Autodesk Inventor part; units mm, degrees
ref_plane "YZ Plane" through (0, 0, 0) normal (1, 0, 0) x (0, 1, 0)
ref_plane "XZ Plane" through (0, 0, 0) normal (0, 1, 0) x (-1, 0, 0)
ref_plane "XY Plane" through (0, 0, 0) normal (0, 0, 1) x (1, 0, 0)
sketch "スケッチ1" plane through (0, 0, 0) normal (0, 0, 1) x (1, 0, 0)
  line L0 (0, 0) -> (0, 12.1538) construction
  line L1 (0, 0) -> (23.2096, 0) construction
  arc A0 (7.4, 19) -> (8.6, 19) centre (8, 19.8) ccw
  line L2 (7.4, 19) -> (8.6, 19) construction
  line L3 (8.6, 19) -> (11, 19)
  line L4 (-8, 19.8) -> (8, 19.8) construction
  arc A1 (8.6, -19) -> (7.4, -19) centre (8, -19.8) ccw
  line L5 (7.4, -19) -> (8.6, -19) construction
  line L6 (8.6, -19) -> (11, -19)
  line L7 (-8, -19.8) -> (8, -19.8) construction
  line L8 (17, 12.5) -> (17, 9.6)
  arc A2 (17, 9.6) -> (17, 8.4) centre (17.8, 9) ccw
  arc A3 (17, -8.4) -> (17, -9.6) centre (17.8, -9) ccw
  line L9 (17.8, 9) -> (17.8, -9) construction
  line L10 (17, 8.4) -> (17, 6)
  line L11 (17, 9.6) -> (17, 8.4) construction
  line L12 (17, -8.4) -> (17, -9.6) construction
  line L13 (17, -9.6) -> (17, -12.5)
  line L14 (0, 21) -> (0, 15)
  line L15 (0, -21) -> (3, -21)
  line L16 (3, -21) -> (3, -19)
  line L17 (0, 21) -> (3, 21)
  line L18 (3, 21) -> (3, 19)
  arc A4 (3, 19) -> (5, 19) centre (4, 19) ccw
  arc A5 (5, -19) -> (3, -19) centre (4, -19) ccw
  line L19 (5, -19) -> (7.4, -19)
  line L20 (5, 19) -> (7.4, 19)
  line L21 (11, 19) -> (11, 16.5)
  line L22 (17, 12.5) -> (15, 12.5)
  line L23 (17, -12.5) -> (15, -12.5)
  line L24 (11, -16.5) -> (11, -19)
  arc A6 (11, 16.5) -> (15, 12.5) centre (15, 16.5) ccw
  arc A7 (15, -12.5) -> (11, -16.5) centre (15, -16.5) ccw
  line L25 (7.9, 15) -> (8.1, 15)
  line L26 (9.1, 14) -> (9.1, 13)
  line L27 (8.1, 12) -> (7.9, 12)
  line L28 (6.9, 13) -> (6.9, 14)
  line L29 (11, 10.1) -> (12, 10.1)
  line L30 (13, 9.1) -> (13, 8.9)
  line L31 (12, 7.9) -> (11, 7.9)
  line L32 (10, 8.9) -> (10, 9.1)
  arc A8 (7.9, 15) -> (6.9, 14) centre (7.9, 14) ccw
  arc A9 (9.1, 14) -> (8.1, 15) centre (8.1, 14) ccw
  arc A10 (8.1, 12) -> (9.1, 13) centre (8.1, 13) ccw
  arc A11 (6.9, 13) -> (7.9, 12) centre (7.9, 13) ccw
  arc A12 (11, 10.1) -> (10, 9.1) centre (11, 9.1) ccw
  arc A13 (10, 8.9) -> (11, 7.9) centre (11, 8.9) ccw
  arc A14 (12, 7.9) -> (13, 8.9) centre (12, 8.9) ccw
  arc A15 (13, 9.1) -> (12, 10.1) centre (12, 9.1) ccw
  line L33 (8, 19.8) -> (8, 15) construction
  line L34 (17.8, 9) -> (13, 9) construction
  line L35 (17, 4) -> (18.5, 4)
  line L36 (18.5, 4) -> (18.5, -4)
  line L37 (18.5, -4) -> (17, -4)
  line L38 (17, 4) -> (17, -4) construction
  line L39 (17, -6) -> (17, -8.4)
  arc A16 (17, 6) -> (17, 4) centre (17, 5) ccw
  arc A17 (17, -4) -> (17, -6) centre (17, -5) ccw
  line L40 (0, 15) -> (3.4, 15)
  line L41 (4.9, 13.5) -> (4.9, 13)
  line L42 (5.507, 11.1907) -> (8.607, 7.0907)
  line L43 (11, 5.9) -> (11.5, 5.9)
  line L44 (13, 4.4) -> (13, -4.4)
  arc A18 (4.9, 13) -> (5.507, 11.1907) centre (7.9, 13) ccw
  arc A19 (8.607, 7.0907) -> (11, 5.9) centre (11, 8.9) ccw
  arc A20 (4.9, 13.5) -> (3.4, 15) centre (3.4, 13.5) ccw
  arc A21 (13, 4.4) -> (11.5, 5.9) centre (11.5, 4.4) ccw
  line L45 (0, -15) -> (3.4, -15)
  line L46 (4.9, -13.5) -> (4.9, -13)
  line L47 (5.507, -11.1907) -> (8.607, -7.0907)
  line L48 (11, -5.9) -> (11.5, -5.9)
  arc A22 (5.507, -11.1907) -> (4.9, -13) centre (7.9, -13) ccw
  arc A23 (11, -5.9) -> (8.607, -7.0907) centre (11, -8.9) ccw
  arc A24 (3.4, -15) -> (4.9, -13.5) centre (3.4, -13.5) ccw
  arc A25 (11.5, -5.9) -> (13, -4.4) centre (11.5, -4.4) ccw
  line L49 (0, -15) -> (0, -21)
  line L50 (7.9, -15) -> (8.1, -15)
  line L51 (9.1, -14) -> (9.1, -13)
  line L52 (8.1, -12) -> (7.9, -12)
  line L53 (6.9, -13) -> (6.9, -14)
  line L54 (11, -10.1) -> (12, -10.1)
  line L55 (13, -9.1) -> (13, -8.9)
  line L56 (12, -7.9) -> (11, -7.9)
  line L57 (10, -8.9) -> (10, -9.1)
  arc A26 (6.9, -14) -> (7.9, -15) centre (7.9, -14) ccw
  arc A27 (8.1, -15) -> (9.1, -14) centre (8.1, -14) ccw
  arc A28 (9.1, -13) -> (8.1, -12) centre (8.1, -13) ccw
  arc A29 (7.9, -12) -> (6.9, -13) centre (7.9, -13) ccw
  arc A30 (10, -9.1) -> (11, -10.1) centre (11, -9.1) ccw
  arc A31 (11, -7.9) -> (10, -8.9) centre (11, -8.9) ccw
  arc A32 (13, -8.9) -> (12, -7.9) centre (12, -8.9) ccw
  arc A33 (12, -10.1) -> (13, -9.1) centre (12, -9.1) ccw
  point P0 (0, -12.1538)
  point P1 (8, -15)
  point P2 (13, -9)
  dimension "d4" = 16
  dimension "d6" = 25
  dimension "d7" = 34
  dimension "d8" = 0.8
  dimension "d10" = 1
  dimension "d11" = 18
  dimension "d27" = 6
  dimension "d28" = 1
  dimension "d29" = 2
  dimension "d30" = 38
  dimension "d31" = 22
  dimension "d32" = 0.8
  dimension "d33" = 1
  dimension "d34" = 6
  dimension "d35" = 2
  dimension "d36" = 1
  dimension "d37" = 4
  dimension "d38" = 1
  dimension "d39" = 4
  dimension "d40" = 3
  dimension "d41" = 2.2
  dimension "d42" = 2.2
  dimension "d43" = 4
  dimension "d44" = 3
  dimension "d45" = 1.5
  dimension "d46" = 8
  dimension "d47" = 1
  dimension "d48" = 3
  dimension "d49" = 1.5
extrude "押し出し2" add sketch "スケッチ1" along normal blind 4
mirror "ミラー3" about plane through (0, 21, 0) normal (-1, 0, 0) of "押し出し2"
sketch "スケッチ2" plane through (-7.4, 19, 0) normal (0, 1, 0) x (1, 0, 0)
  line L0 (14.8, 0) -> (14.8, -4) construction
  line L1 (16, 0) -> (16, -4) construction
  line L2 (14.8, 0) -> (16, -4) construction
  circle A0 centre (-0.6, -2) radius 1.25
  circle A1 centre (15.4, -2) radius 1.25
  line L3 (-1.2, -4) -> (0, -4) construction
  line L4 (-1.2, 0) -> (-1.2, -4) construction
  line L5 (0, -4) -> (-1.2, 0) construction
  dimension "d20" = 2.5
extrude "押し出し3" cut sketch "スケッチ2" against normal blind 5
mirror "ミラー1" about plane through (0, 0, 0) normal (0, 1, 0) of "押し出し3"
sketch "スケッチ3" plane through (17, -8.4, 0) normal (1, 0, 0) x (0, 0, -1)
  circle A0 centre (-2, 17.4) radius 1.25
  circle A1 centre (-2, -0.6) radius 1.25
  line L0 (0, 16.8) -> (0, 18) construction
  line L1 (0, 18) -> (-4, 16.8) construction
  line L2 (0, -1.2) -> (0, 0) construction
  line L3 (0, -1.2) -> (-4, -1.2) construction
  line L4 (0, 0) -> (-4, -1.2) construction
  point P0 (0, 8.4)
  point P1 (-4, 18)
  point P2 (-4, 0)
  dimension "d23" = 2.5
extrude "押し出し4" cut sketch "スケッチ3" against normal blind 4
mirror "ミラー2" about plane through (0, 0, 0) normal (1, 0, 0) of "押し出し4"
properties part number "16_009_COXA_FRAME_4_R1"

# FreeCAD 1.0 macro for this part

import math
import FreeCAD as App
import Part
import Sketcher

V = App.Vector
Q = App.Units.Quantity

doc = App.newDocument("Part")
body = doc.addObject("PartDesign::Body", "Body")

sketch1 = doc.addObject("Sketcher::SketchObject", "Sketch")
body.addObject(sketch1)
sketch1.AttachmentSupport = (doc.XY_Plane, [""])
sketch1.MapMode = "FlatFace"
sketch1.addGeometry([
    Part.ArcOfCircle(Part.Circle(V(8, 19.8, 0), V(0, 0, 1), 1), math.radians(-127), math.radians(-53)),
    Part.LineSegment(V(7.4, 19, 0), V(5, 19, 0)),
    Part.ArcOfCircle(Part.Circle(V(4, 19, 0), V(0, 0, 1), 1), math.radians(180), math.radians(360)),
    Part.LineSegment(V(3, 19, 0), V(3, 21, 0)),
    Part.LineSegment(V(3, 21, 0), V(0, 21, 0)),
    Part.LineSegment(V(0, 21, 0), V(0, 15, 0)),
    Part.LineSegment(V(0, 15, 0), V(3.4, 15, 0)),
    Part.ArcOfCircle(Part.Circle(V(3.4, 13.5, 0), V(0, 0, 1), 1.5), math.radians(0), math.radians(90)),
    Part.LineSegment(V(4.9, 13.5, 0), V(4.9, 13, 0)),
    Part.ArcOfCircle(Part.Circle(V(7.9, 13, 0), V(0, 0, 1), 3), math.radians(180), math.radians(217)),
    Part.LineSegment(V(5.51, 11.19, 0), V(8.61, 7.09, 0)),
    Part.ArcOfCircle(Part.Circle(V(11, 8.9, 0), V(0, 0, 1), 3), math.radians(-143), math.radians(-90)),
    Part.LineSegment(V(11, 5.9, 0), V(11.5, 5.9, 0)),
    Part.ArcOfCircle(Part.Circle(V(11.5, 4.4, 0), V(0, 0, 1), 1.5), math.radians(0), math.radians(90)),
    Part.LineSegment(V(13, 4.4, 0), V(13, -4.4, 0)),
    Part.ArcOfCircle(Part.Circle(V(11.5, -4.4, 0), V(0, 0, 1), 1.5), math.radians(-90), math.radians(0)),
    Part.LineSegment(V(11.5, -5.9, 0), V(11, -5.9, 0)),
    Part.ArcOfCircle(Part.Circle(V(11, -8.9, 0), V(0, 0, 1), 3), math.radians(90), math.radians(143)),
    Part.LineSegment(V(8.61, -7.09, 0), V(5.51, -11.19, 0)),
    Part.ArcOfCircle(Part.Circle(V(7.9, -13, 0), V(0, 0, 1), 3), math.radians(143), math.radians(180)),
    Part.LineSegment(V(4.9, -13, 0), V(4.9, -13.5, 0)),
    Part.ArcOfCircle(Part.Circle(V(3.4, -13.5, 0), V(0, 0, 1), 1.5), math.radians(-90), math.radians(0)),
    Part.LineSegment(V(3.4, -15, 0), V(0, -15, 0)),
    Part.LineSegment(V(0, -15, 0), V(0, -21, 0)),
    Part.LineSegment(V(0, -21, 0), V(3, -21, 0)),
    Part.LineSegment(V(3, -21, 0), V(3, -19, 0)),
    Part.ArcOfCircle(Part.Circle(V(4, -19, 0), V(0, 0, 1), 1), math.radians(0), math.radians(180)),
    Part.LineSegment(V(5, -19, 0), V(7.4, -19, 0)),
    Part.ArcOfCircle(Part.Circle(V(8, -19.8, 0), V(0, 0, 1), 1), math.radians(53), math.radians(127)),
    Part.LineSegment(V(8.6, -19, 0), V(11, -19, 0)),
    Part.LineSegment(V(11, -19, 0), V(11, -16.5, 0)),
    Part.ArcOfCircle(Part.Circle(V(15, -16.5, 0), V(0, 0, 1), 4), math.radians(90), math.radians(180)),
    Part.LineSegment(V(15, -12.5, 0), V(17, -12.5, 0)),
    Part.LineSegment(V(17, -12.5, 0), V(17, -9.6, 0)),
    Part.ArcOfCircle(Part.Circle(V(17.8, -9, 0), V(0, 0, 1), 1), math.radians(143), math.radians(217)),
    Part.LineSegment(V(17, -8.4, 0), V(17, -6, 0)),
    Part.ArcOfCircle(Part.Circle(V(17, -5, 0), V(0, 0, 1), 1), math.radians(90), math.radians(270)),
    Part.LineSegment(V(17, -4, 0), V(18.5, -4, 0)),
    Part.LineSegment(V(18.5, -4, 0), V(18.5, 4, 0)),
    Part.LineSegment(V(18.5, 4, 0), V(17, 4, 0)),
    Part.ArcOfCircle(Part.Circle(V(17, 5, 0), V(0, 0, 1), 1), math.radians(90), math.radians(270)),
    Part.LineSegment(V(17, 6, 0), V(17, 8.4, 0)),
    Part.ArcOfCircle(Part.Circle(V(17.8, 9, 0), V(0, 0, 1), 1), math.radians(143), math.radians(217)),
    Part.LineSegment(V(17, 9.6, 0), V(17, 12.5, 0)),
    Part.LineSegment(V(17, 12.5, 0), V(15, 12.5, 0)),
    Part.ArcOfCircle(Part.Circle(V(15, 16.5, 0), V(0, 0, 1), 4), math.radians(180), math.radians(270)),
    Part.LineSegment(V(11, 16.5, 0), V(11, 19, 0)),
    Part.LineSegment(V(11, 19, 0), V(8.6, 19, 0)),
    Part.LineSegment(V(8.1, -15, 0), V(7.9, -15, 0)),
    Part.ArcOfCircle(Part.Circle(V(7.9, -14, 0), V(0, 0, 1), 1), math.radians(180), math.radians(270)),
    Part.LineSegment(V(6.9, -14, 0), V(6.9, -13, 0)),
    Part.ArcOfCircle(Part.Circle(V(7.9, -13, 0), V(0, 0, 1), 1), math.radians(90), math.radians(180)),
    Part.LineSegment(V(7.9, -12, 0), V(8.1, -12, 0)),
    Part.ArcOfCircle(Part.Circle(V(8.1, -13, 0), V(0, 0, 1), 1), math.radians(0), math.radians(90)),
    Part.LineSegment(V(9.1, -13, 0), V(9.1, -14, 0)),
    Part.ArcOfCircle(Part.Circle(V(8.1, -14, 0), V(0, 0, 1), 1), math.radians(-90), math.radians(0)),
    Part.LineSegment(V(12, -10.1, 0), V(11, -10.1, 0)),
    Part.ArcOfCircle(Part.Circle(V(11, -9.1, 0), V(0, 0, 1), 1), math.radians(180), math.radians(270)),
    Part.LineSegment(V(10, -9.1, 0), V(10, -8.9, 0)),
    Part.ArcOfCircle(Part.Circle(V(11, -8.9, 0), V(0, 0, 1), 1), math.radians(90), math.radians(180)),
    Part.LineSegment(V(11, -7.9, 0), V(12, -7.9, 0)),
    Part.ArcOfCircle(Part.Circle(V(12, -8.9, 0), V(0, 0, 1), 1), math.radians(0), math.radians(90)),
    Part.LineSegment(V(13, -8.9, 0), V(13, -9.1, 0)),
    Part.ArcOfCircle(Part.Circle(V(12, -9.1, 0), V(0, 0, 1), 1), math.radians(-90), math.radians(0)),
    Part.ArcOfCircle(Part.Circle(V(7.9, 14, 0), V(0, 0, 1), 1), math.radians(90), math.radians(180)),
    Part.LineSegment(V(7.9, 15, 0), V(8.1, 15, 0)),
    Part.ArcOfCircle(Part.Circle(V(8.1, 14, 0), V(0, 0, 1), 1), math.radians(0), math.radians(90)),
    Part.LineSegment(V(9.1, 14, 0), V(9.1, 13, 0)),
    Part.ArcOfCircle(Part.Circle(V(8.1, 13, 0), V(0, 0, 1), 1), math.radians(-90), math.radians(0)),
    Part.LineSegment(V(8.1, 12, 0), V(7.9, 12, 0)),
    Part.ArcOfCircle(Part.Circle(V(7.9, 13, 0), V(0, 0, 1), 1), math.radians(180), math.radians(270)),
    Part.LineSegment(V(6.9, 13, 0), V(6.9, 14, 0)),
    Part.ArcOfCircle(Part.Circle(V(11, 9.1, 0), V(0, 0, 1), 1), math.radians(90), math.radians(180)),
    Part.LineSegment(V(11, 10.1, 0), V(12, 10.1, 0)),
    Part.ArcOfCircle(Part.Circle(V(12, 9.1, 0), V(0, 0, 1), 1), math.radians(0), math.radians(90)),
    Part.LineSegment(V(13, 9.1, 0), V(13, 8.9, 0)),
    Part.ArcOfCircle(Part.Circle(V(12, 8.9, 0), V(0, 0, 1), 1), math.radians(-90), math.radians(0)),
    Part.LineSegment(V(12, 7.9, 0), V(11, 7.9, 0)),
    Part.ArcOfCircle(Part.Circle(V(11, 8.9, 0), V(0, 0, 1), 1), math.radians(180), math.radians(270)),
    Part.LineSegment(V(10, 8.9, 0), V(10, 9.1, 0)),
], False)
sketch1.addConstraint([
    Sketcher.Constraint("Coincident", 0, 1, 1, 1),
    Sketcher.Constraint("Coincident", 1, 2, 2, 2),
    Sketcher.Constraint("Tangent", 2, 1, 3, 1),
    Sketcher.Constraint("Coincident", 3, 2, 4, 1),
    Sketcher.Constraint("Coincident", 4, 2, 5, 1),
    Sketcher.Constraint("Coincident", 5, 2, 6, 1),
    Sketcher.Constraint("Tangent", 6, 2, 7, 2),
    Sketcher.Constraint("Tangent", 7, 1, 8, 1),
    Sketcher.Constraint("Tangent", 8, 2, 9, 1),
    Sketcher.Constraint("Tangent", 9, 2, 10, 1),
    Sketcher.Constraint("Tangent", 10, 2, 11, 1),
    Sketcher.Constraint("Tangent", 11, 2, 12, 1),
    Sketcher.Constraint("Tangent", 12, 2, 13, 2),
    Sketcher.Constraint("Tangent", 13, 1, 14, 1),
    Sketcher.Constraint("Tangent", 14, 2, 15, 2),
    Sketcher.Constraint("Tangent", 15, 1, 16, 1),
    Sketcher.Constraint("Tangent", 16, 2, 17, 1),
    Sketcher.Constraint("Tangent", 17, 2, 18, 1),
    Sketcher.Constraint("Tangent", 18, 2, 19, 1),
    Sketcher.Constraint("Tangent", 19, 2, 20, 1),
    Sketcher.Constraint("Tangent", 20, 2, 21, 2),
    Sketcher.Constraint("Tangent", 21, 1, 22, 1),
    Sketcher.Constraint("Coincident", 22, 2, 23, 1),
    Sketcher.Constraint("Coincident", 23, 2, 24, 1),
    Sketcher.Constraint("Coincident", 24, 2, 25, 1),
    Sketcher.Constraint("Tangent", 25, 2, 26, 2),
    Sketcher.Constraint("Coincident", 26, 1, 27, 1),
    Sketcher.Constraint("Coincident", 27, 2, 28, 2),
    Sketcher.Constraint("Coincident", 28, 1, 29, 1),
    Sketcher.Constraint("Coincident", 29, 2, 30, 1),
    Sketcher.Constraint("Tangent", 30, 2, 31, 2),
    Sketcher.Constraint("Tangent", 31, 1, 32, 1),
    Sketcher.Constraint("Coincident", 32, 2, 33, 1),
    Sketcher.Constraint("Coincident", 33, 2, 34, 2),
    Sketcher.Constraint("Coincident", 34, 1, 35, 1),
    Sketcher.Constraint("Coincident", 35, 2, 36, 2),
    Sketcher.Constraint("Tangent", 36, 1, 37, 1),
    Sketcher.Constraint("Coincident", 37, 2, 38, 1),
    Sketcher.Constraint("Coincident", 38, 2, 39, 1),
    Sketcher.Constraint("Tangent", 39, 2, 40, 2),
    Sketcher.Constraint("Coincident", 40, 1, 41, 1),
    Sketcher.Constraint("Coincident", 41, 2, 42, 2),
    Sketcher.Constraint("Coincident", 42, 1, 43, 1),
    Sketcher.Constraint("Coincident", 43, 2, 44, 1),
    Sketcher.Constraint("Tangent", 44, 2, 45, 2),
    Sketcher.Constraint("Tangent", 45, 1, 46, 1),
    Sketcher.Constraint("Coincident", 46, 2, 47, 1),
    Sketcher.Constraint("Coincident", 47, 2, 0, 2),
    Sketcher.Constraint("Tangent", 48, 2, 49, 2),
    Sketcher.Constraint("Tangent", 49, 1, 50, 1),
    Sketcher.Constraint("Tangent", 50, 2, 51, 2),
    Sketcher.Constraint("Tangent", 51, 1, 52, 1),
    Sketcher.Constraint("Tangent", 52, 2, 53, 2),
    Sketcher.Constraint("Tangent", 53, 1, 54, 1),
    Sketcher.Constraint("Tangent", 54, 2, 55, 2),
    Sketcher.Constraint("Tangent", 55, 1, 48, 1),
    Sketcher.Constraint("Tangent", 56, 2, 57, 2),
    Sketcher.Constraint("Tangent", 57, 1, 58, 1),
    Sketcher.Constraint("Tangent", 58, 2, 59, 2),
    Sketcher.Constraint("Tangent", 59, 1, 60, 1),
    Sketcher.Constraint("Tangent", 60, 2, 61, 2),
    Sketcher.Constraint("Tangent", 61, 1, 62, 1),
    Sketcher.Constraint("Tangent", 62, 2, 63, 2),
    Sketcher.Constraint("Tangent", 63, 1, 56, 1),
    Sketcher.Constraint("Tangent", 64, 1, 65, 1),
    Sketcher.Constraint("Tangent", 65, 2, 66, 2),
    Sketcher.Constraint("Tangent", 66, 1, 67, 1),
    Sketcher.Constraint("Tangent", 67, 2, 68, 2),
    Sketcher.Constraint("Tangent", 68, 1, 69, 1),
    Sketcher.Constraint("Tangent", 69, 2, 70, 2),
    Sketcher.Constraint("Tangent", 70, 1, 71, 1),
    Sketcher.Constraint("Tangent", 71, 2, 64, 2),
    Sketcher.Constraint("Tangent", 72, 1, 73, 1),
    Sketcher.Constraint("Tangent", 73, 2, 74, 2),
    Sketcher.Constraint("Tangent", 74, 1, 75, 1),
    Sketcher.Constraint("Tangent", 75, 2, 76, 2),
    Sketcher.Constraint("Tangent", 76, 1, 77, 1),
    Sketcher.Constraint("Tangent", 77, 2, 78, 2),
    Sketcher.Constraint("Tangent", 78, 1, 79, 1),
    Sketcher.Constraint("Tangent", 79, 2, 72, 2),
    Sketcher.Constraint("Horizontal", 1),
    Sketcher.Constraint("Vertical", 3),
    Sketcher.Constraint("Horizontal", 4),
    Sketcher.Constraint("Vertical", 5),
    Sketcher.Constraint("Horizontal", 6),
    Sketcher.Constraint("Vertical", 8),
    Sketcher.Constraint("Horizontal", 12),
    Sketcher.Constraint("Vertical", 14),
    Sketcher.Constraint("Horizontal", 16),
    Sketcher.Constraint("Vertical", 20),
    Sketcher.Constraint("Horizontal", 22),
    Sketcher.Constraint("Vertical", 23),
    Sketcher.Constraint("Horizontal", 24),
    Sketcher.Constraint("Vertical", 25),
    Sketcher.Constraint("Horizontal", 27),
    Sketcher.Constraint("Horizontal", 29),
    Sketcher.Constraint("Vertical", 30),
    Sketcher.Constraint("Horizontal", 32),
    Sketcher.Constraint("Vertical", 33),
    Sketcher.Constraint("Vertical", 35),
    Sketcher.Constraint("Horizontal", 37),
    Sketcher.Constraint("Vertical", 38),
    Sketcher.Constraint("Horizontal", 39),
    Sketcher.Constraint("Vertical", 41),
    Sketcher.Constraint("Vertical", 43),
    Sketcher.Constraint("Horizontal", 44),
    Sketcher.Constraint("Vertical", 46),
    Sketcher.Constraint("Horizontal", 47),
    Sketcher.Constraint("Horizontal", 48),
    Sketcher.Constraint("Vertical", 50),
    Sketcher.Constraint("Horizontal", 52),
    Sketcher.Constraint("Vertical", 54),
    Sketcher.Constraint("Horizontal", 56),
    Sketcher.Constraint("Vertical", 58),
    Sketcher.Constraint("Horizontal", 60),
    Sketcher.Constraint("Vertical", 62),
    Sketcher.Constraint("Horizontal", 65),
    Sketcher.Constraint("Vertical", 67),
    Sketcher.Constraint("Horizontal", 69),
    Sketcher.Constraint("Vertical", 71),
    Sketcher.Constraint("Horizontal", 73),
    Sketcher.Constraint("Vertical", 75),
    Sketcher.Constraint("Horizontal", 77),
    Sketcher.Constraint("Vertical", 79),
    Sketcher.Constraint("Coincident", 51, 3, 19, 3),
    Sketcher.Constraint("Coincident", 59, 3, 17, 3),
    Sketcher.Constraint("Coincident", 70, 3, 9, 3),
    Sketcher.Constraint("Coincident", 78, 3, 11, 3),
    Sketcher.Constraint("Equal", 0, 2),
    Sketcher.Constraint("Equal", 9, 11),
    Sketcher.Constraint("Equal", 7, 13),
    Sketcher.Constraint("Equal", 13, 15),
    Sketcher.Constraint("Equal", 11, 17),
    Sketcher.Constraint("Equal", 17, 19),
    Sketcher.Constraint("Equal", 15, 21),
    Sketcher.Constraint("Equal", 2, 26),
    Sketcher.Constraint("Equal", 26, 28),
    Sketcher.Constraint("Equal", 28, 34),
    Sketcher.Constraint("Equal", 34, 36),
    Sketcher.Constraint("Equal", 36, 40),
    Sketcher.Constraint("Equal", 40, 42),
    Sketcher.Constraint("Equal", 31, 45),
    Sketcher.Constraint("Equal", 42, 49),
    Sketcher.Constraint("Equal", 49, 51),
    Sketcher.Constraint("Equal", 51, 53),
    Sketcher.Constraint("Equal", 53, 55),
    Sketcher.Constraint("Equal", 55, 57),
    Sketcher.Constraint("Equal", 57, 59),
    Sketcher.Constraint("Equal", 59, 61),
    Sketcher.Constraint("Equal", 61, 63),
    Sketcher.Constraint("Equal", 63, 64),
    Sketcher.Constraint("Equal", 64, 66),
    Sketcher.Constraint("Equal", 66, 68),
    Sketcher.Constraint("Equal", 68, 70),
    Sketcher.Constraint("Equal", 70, 72),
    Sketcher.Constraint("Equal", 72, 74),
    Sketcher.Constraint("Equal", 74, 76),
    Sketcher.Constraint("Equal", 76, 78),
    Sketcher.Constraint("Symmetric", 5, 2, 22, 2, -1, 1),
    Sketcher.Constraint("Symmetric", 11, 3, 17, 3, -1),
    Sketcher.Constraint("Symmetric", 9, 3, 19, 3, -1),
    Sketcher.Constraint("Symmetric", 2, 3, 26, 3, -1),
    Sketcher.Constraint("Symmetric", 0, 3, 28, 3, -1),
    Sketcher.Constraint("Symmetric", 36, 3, 40, 3, -1),
    Sketcher.Constraint("Symmetric", 34, 3, 42, 3, -1),
    Sketcher.Constraint("Symmetric", 31, 3, 45, 3, -1),
    Sketcher.Constraint("Symmetric", 55, 3, 66, 3, -1),
    Sketcher.Constraint("Symmetric", 63, 3, 74, 3, -1),
    Sketcher.Constraint("Symmetric", 4, 2, 23, 2, -1),
    Sketcher.Constraint("Horizontal", 2, 3, 0, 1),
    Sketcher.Constraint("Horizontal", 25, 2, 26, 1),
    Sketcher.Constraint("Horizontal", 27, 2, 28, 1),
    Sketcher.Constraint("Horizontal", 2, 1, 46, 2),
    Sketcher.Constraint("Horizontal", 22, 2, 48, 2),
    Sketcher.Constraint("Vertical", 16, 2, 29, 2),
    Sketcher.Constraint("Vertical", 40, 3, 32, 2),
    Sketcher.Constraint("Vertical", 33, 2, 34, 1),
    Sketcher.Constraint("Vertical", 39, 2, 40, 1),
    Sketcher.Constraint("Vertical", 41, 2, 42, 1),
    Sketcher.Constraint("Vertical", 14, 2, 61, 1),
    Sketcher.Constraint("Equal", 27, 29),
    Sketcher.Constraint("Equal", 44, 3),
    Sketcher.Constraint("Equal", 16, 8),
    Sketcher.Constraint("Equal", 47, 35),
    Sketcher.Constraint("Equal", 69, 58),
    Sketcher.Constraint("Radius", 0, Q("1 mm")),
    Sketcher.Constraint("Radius", 9, Q("3 mm")),
    Sketcher.Constraint("Radius", 31, Q("4 mm")),
    Sketcher.Constraint("Radius", 7, Q("1.5 mm")),
    Sketcher.Constraint("DistanceX", 4, 2, 4, 1, Q("3 mm")),
    Sketcher.Constraint("DistanceX", 32, 1, 32, 2, Q("2 mm")),
    Sketcher.Constraint("DistanceX", 56, 2, 56, 1, Q("1 mm")),
    Sketcher.Constraint("DistanceY", 5, 2, 5, 1, Q("6 mm")),
    Sketcher.Constraint("DistanceY", 38, 1, 38, 2, Q("8 mm")),
    Sketcher.Constraint("DistanceX", 37, 1, 37, 2, Q("1.5 mm")),
    Sketcher.Constraint("DistanceX", -1, 1, 0, 3, Q("8 mm")),
    Sketcher.Constraint("DistanceX", 1, 2, 1, 1, Q("2.4 mm")),
    Sketcher.Constraint("DistanceX", 6, 1, 6, 2, Q("3.4 mm")),
    Sketcher.Constraint("DistanceX", 48, 2, 48, 1, Q("0.2 mm")),
    Sketcher.Constraint("DistanceY", 14, 2, 14, 1, Q("8.8 mm")),
    Sketcher.Constraint("DistanceY", 30, 1, 30, 2, Q("2.5 mm")),
    Sketcher.Constraint("DistanceY", 33, 1, 33, 2, Q("2.9 mm")),
    Sketcher.Constraint("DistanceY", -1, 1, 2, 3, Q("19 mm")),
])
pad1 = doc.addObject("PartDesign::Pad", "Pad")
body.addObject(pad1)
pad1.Profile = sketch1
pad1.Length = 4
doc.recompute()

mirrored = doc.addObject("PartDesign::Mirrored", "Mirrored")
body.addObject(mirrored)
mirrored.Originals = [pad1]
mirrored.MirrorPlane = (doc.YZ_Plane, [""])
body.Tip = mirrored

sketch2 = doc.addObject("Sketcher::SketchObject", "Sketch001")
body.addObject(sketch2)
sketch2.AttachmentSupport = (doc.XZ_Plane, [""])
sketch2.MapMode = "FlatFace"
sketch2.AttachmentOffset = App.Placement(V(0, 0, -19), App.Rotation())
sketch2.addGeometry([
    Part.Circle(V(-8, 2, 0), V(0, 0, 1), 1.2),
    Part.Circle(V(8, 2, 0), V(0, 0, 1), 1.2),
], False)
sketch2.addConstraint([
    Sketcher.Constraint("Equal", 0, 1),
    Sketcher.Constraint("Symmetric", 0, 3, 1, 3, -2),
    Sketcher.Constraint("Diameter", 0, Q("2.5 mm")),
    Sketcher.Constraint("DistanceX", 0, 3, -1, 1, Q("8 mm")),
    Sketcher.Constraint("DistanceY", -1, 1, 0, 3, Q("2 mm")),
])
pocket1 = doc.addObject("PartDesign::Pocket", "Pocket")
body.addObject(pocket1)
pocket1.Profile = sketch2
pocket1.Length = 5
pocket1.Reversed = True
doc.recompute()

mirrored2 = doc.addObject("PartDesign::Mirrored", "Mirrored001")
body.addObject(mirrored2)
mirrored2.Originals = [pocket1]
mirrored2.MirrorPlane = (doc.XZ_Plane, [""])
body.Tip = mirrored2

sketch3 = doc.addObject("Sketcher::SketchObject", "Sketch002")
body.addObject(sketch3)
sketch3.AttachmentSupport = (doc.YZ_Plane, [""])
sketch3.MapMode = "FlatFace"
sketch3.AttachmentOffset = App.Placement(V(0, 0, 17), App.Rotation())
sketch3.addGeometry([
    Part.Circle(V(9, 2, 0), V(0, 0, 1), 1.2),
    Part.Circle(V(-9, 2, 0), V(0, 0, 1), 1.2),
], False)
sketch3.addConstraint([
    Sketcher.Constraint("Equal", 0, 1),
    Sketcher.Constraint("Symmetric", 0, 3, 1, 3, -2),
    Sketcher.Constraint("Diameter", 0, Q("2.5 mm")),
    Sketcher.Constraint("DistanceX", -1, 1, 0, 3, Q("9 mm")),
    Sketcher.Constraint("DistanceY", -1, 1, 0, 3, Q("2 mm")),
])
pocket2 = doc.addObject("PartDesign::Pocket", "Pocket001")
body.addObject(pocket2)
pocket2.Profile = sketch3
pocket2.Length = 4
doc.recompute()

mirrored3 = doc.addObject("PartDesign::Mirrored", "Mirrored002")
body.addObject(mirrored3)
mirrored3.Originals = [pocket2]
mirrored3.MirrorPlane = (doc.YZ_Plane, [""])
body.Tip = mirrored3

doc.recompute()
